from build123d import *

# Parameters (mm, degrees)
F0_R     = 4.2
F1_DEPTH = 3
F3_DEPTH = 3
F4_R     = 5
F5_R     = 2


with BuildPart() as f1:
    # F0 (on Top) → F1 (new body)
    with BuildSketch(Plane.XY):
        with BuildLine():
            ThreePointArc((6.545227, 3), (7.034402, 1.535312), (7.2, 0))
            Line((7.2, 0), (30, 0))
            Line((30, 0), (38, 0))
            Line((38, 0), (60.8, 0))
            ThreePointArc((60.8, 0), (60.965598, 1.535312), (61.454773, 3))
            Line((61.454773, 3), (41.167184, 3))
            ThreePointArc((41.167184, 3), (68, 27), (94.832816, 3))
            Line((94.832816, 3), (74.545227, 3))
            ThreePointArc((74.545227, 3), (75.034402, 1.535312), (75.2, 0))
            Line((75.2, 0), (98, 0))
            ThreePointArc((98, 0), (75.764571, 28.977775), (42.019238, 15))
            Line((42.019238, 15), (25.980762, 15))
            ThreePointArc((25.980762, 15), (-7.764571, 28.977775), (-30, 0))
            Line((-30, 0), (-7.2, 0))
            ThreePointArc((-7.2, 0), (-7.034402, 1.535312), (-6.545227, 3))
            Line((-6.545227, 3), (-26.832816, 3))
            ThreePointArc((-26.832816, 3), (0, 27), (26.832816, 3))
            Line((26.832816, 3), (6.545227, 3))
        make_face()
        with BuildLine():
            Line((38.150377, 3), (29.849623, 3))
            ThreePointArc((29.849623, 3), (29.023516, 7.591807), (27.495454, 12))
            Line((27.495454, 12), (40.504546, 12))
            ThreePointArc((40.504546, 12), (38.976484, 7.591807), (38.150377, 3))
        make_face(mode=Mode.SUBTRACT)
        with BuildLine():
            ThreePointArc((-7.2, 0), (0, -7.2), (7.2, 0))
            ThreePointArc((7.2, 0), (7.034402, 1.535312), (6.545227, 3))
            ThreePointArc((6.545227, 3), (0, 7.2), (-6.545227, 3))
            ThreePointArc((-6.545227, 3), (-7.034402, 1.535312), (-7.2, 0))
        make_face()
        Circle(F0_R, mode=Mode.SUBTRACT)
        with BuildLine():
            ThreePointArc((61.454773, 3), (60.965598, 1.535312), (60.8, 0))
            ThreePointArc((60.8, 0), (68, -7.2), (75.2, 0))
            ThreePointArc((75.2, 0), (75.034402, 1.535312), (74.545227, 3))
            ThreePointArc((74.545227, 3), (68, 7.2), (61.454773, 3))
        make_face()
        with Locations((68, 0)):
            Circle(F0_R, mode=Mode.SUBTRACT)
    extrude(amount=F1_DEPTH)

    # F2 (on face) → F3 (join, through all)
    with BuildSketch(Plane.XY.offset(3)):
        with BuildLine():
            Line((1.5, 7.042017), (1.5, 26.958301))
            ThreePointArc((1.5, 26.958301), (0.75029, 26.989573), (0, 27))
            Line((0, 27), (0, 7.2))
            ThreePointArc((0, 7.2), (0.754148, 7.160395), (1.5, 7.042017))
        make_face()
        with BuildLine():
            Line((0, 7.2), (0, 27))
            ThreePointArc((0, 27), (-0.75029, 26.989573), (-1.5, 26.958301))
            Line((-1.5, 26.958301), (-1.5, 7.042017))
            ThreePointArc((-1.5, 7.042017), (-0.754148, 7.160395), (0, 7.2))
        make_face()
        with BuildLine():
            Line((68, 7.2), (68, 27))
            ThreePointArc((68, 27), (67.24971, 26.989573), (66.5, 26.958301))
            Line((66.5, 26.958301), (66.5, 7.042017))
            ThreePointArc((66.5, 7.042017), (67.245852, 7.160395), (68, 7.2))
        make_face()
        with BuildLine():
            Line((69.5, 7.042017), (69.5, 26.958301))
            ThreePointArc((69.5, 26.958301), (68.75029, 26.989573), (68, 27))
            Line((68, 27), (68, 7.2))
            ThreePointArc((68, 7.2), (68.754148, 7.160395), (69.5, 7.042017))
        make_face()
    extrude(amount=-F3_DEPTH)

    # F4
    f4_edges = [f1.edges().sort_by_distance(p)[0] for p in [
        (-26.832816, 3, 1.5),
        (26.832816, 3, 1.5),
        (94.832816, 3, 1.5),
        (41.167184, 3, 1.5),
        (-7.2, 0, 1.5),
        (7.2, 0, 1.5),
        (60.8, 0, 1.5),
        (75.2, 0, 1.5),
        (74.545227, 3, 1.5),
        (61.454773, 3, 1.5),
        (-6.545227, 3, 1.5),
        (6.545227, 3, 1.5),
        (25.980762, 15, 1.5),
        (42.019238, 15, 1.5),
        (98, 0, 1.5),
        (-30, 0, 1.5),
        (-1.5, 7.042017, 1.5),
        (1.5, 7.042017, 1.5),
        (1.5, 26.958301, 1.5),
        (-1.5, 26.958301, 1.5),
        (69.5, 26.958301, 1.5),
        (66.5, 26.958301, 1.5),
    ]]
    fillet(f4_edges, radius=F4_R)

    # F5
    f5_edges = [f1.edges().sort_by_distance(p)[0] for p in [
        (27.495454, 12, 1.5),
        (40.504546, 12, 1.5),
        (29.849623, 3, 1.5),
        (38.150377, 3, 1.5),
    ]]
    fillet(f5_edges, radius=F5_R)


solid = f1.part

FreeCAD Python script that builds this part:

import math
import FreeCAD as App
import Part
import Sketcher

V = App.Vector
Q = App.Units.Quantity


def edges_at(feature, points):
    """Names of the edges that pass closest to the given points."""
    edges = feature.Shape.Edges
    near = lambda p: min(range(len(edges)), key=lambda i: edges[i].distToShape(Part.Vertex(*p))[0])
    return sorted({f"Edge{near(p) + 1}" for p in points})

doc = App.newDocument("Part")
body = doc.addObject("PartDesign::Body", "Body")

sketch1 = body.newObject("Sketcher::SketchObject", "Sketch")
sketch1.AttachmentSupport = (doc.getObject("XY_Plane"), [""])
sketch1.MapMode = "FlatFace"
sketch1.addGeometry([
    Part.LineSegment(V(7.2, 0, 0), V(60.8, 0, 0)),
    Part.ArcOfCircle(Part.Circle(V(68, 0, 0), V(0, 0, 1), 7.2), math.radians(180), math.radians(360)),
    Part.LineSegment(V(75.2, 0, 0), V(98, 0, 0)),
    Part.ArcOfCircle(Part.Circle(V(68, 0, 0), V(0, 0, 1), 30), math.radians(0), math.radians(150)),
    Part.LineSegment(V(42.019238, 15, 0), V(25.980762, 15, 0)),
    Part.ArcOfCircle(Part.Circle(V(0, 0, 0), V(0, 0, 1), 30), math.radians(30), math.radians(180)),
    Part.LineSegment(V(-30, 0, 0), V(-7.2, 0, 0)),
    Part.ArcOfCircle(Part.Circle(V(0, 0, 0), V(0, 0, 1), 7.2), math.radians(180), math.radians(360)),
    Part.Circle(V(0, 0, 0), V(0, 0, 1), 4.2),
    Part.Circle(V(68, 0, 0), V(0, 0, 1), 4.2),
    Part.ArcOfCircle(Part.Circle(V(67.99997, 0.000008, 0), V(0, 0, 1), 29.999969), math.radians(156.421812), math.radians(174.260838)),
    Part.LineSegment(V(38.150377, 3, 0), V(29.849623, 3, 0)),
    Part.ArcOfCircle(Part.Circle(V(0.00003, 0.000008, 0), V(0, 0, 1), 29.999969), math.radians(5.739162), math.radians(23.578188)),
    Part.LineSegment(V(27.495454, 12, 0), V(40.504546, 12, 0)),
    Part.LineSegment(V(26.832816, 3, 0), V(6.545227, 3, 0)),
    Part.ArcOfCircle(Part.Circle(V(0, 0, 0), V(0, 0, 1), 7.2), math.radians(24.624316), math.radians(155.375684)),
    Part.LineSegment(V(-6.545227, 3, 0), V(-26.832816, 3, 0)),
    Part.ArcOfCircle(Part.Circle(V(0, 0, 0), V(0, 0, 1), 27), math.radians(6.379371), math.radians(173.620629)),
    Part.LineSegment(V(61.454773, 3, 0), V(41.167184, 3, 0)),
    Part.ArcOfCircle(Part.Circle(V(68, 0, 0), V(0, 0, 1), 27), math.radians(6.379371), math.radians(173.620629)),
    Part.LineSegment(V(94.832816, 3, 0), V(74.545227, 3, 0)),
    Part.ArcOfCircle(Part.Circle(V(68, 0, 0), V(0, 0, 1), 7.2), math.radians(24.624316), math.radians(155.375684)),
], False)
sketch1.addConstraint([
    Sketcher.Constraint("Coincident", 0, 2, 1, 1),
    Sketcher.Constraint("Coincident", 1, 2, 2, 1),
    Sketcher.Constraint("Coincident", 2, 2, 3, 1),
    Sketcher.Constraint("Coincident", 3, 2, 4, 1),
    Sketcher.Constraint("Coincident", 4, 2, 5, 1),
    Sketcher.Constraint("Coincident", 5, 2, 6, 1),
    Sketcher.Constraint("Coincident", 6, 2, 7, 1),
    Sketcher.Constraint("Coincident", 7, 2, 0, 1),
    Sketcher.Constraint("Coincident", 10, 2, 11, 1),
    Sketcher.Constraint("Coincident", 11, 2, 12, 1),
    Sketcher.Constraint("Coincident", 12, 2, 13, 1),
    Sketcher.Constraint("Coincident", 13, 2, 10, 1),
    Sketcher.Constraint("Coincident", 14, 2, 15, 1),
    Sketcher.Constraint("Coincident", 15, 2, 16, 1),
    Sketcher.Constraint("Coincident", 16, 2, 17, 2),
    Sketcher.Constraint("Coincident", 17, 1, 14, 1),
    Sketcher.Constraint("Coincident", 18, 2, 19, 2),
    Sketcher.Constraint("Coincident", 19, 1, 20, 1),
    Sketcher.Constraint("Coincident", 20, 2, 21, 1),
    Sketcher.Constraint("Coincident", 21, 2, 18, 1),
    Sketcher.Constraint("Horizontal", 0),
    Sketcher.Constraint("Horizontal", 2),
    Sketcher.Constraint("Horizontal", 4),
    Sketcher.Constraint("Horizontal", 6),
    Sketcher.Constraint("Horizontal", 11),
    Sketcher.Constraint("Horizontal", 13),
    Sketcher.Constraint("Horizontal", 14),
    Sketcher.Constraint("Horizontal", 16),
    Sketcher.Constraint("Horizontal", 18),
    Sketcher.Constraint("Horizontal", 20),
    Sketcher.Constraint("Coincident", 5, 3, -1, 1),
    Sketcher.Constraint("Coincident", 7, 3, -1, 1),
    Sketcher.Constraint("Coincident", 8, 3, -1, 1),
    Sketcher.Constraint("Coincident", 15, 3, -1, 1),
    Sketcher.Constraint("Coincident", 17, 3, -1, 1),
    Sketcher.Constraint("Coincident", 3, 3, 1, 3),
    Sketcher.Constraint("Coincident", 9, 3, 1, 3),
    Sketcher.Constraint("Coincident", 19, 3, 1, 3),
    Sketcher.Constraint("Coincident", 21, 3, 1, 3),
    Sketcher.Constraint("Equal", 3, 5),
    Sketcher.Constraint("Equal", 1, 7),
    Sketcher.Constraint("Equal", 8, 9),
    Sketcher.Constraint("Equal", 10, 12),
    Sketcher.Constraint("Equal", 7, 15),
    Sketcher.Constraint("Equal", 17, 19),
    Sketcher.Constraint("Equal", 15, 21),
    Sketcher.Constraint("PointOnObject", 1, 3, -1),
    Sketcher.Constraint("PointOnObject", 0, 2, -1),
    Sketcher.Constraint("PointOnObject", 1, 2, -1),
    Sketcher.Constraint("PointOnObject", 5, 2, -1),
    Sketcher.Constraint("Horizontal", 10, 3, 12, 3),
    Sketcher.Constraint("Horizontal", 11, 2, 14, 2),
    Sketcher.Constraint("Horizontal", 14, 2, 15, 2),
    Sketcher.Constraint("Horizontal", 17, 1, 18, 2),
    Sketcher.Constraint("Horizontal", 18, 2, 19, 1),
    Sketcher.Constraint("Radius", 3, Q("30 mm")),
    Sketcher.Constraint("Radius", 17, Q("27 mm")),
    Sketcher.Constraint("Diameter", 8, Q("8.4 mm")),
    Sketcher.Constraint("Radius", 1, Q("7.2 mm")),
    Sketcher.Constraint("DistanceX", 0, 1, 0, 2, Q("53.6 mm")),
    Sketcher.Constraint("DistanceY", -1, 1, 3, 2, Q("15 mm")),
    Sketcher.Constraint("DistanceY", -1, 1, 10, 2, Q("3 mm")),
    Sketcher.Constraint("DistanceY", -1, 1, 12, 2, Q("12 mm")),
    Sketcher.Constraint("Radius", 10, Q("29.999969 mm")),
    Sketcher.Constraint("DistanceX", 13, 1, 13, 2, Q("13.009092 mm")),
    Sketcher.Constraint("DistanceX", 11, 2, 11, 1, Q("8.300754 mm")),
    Sketcher.Constraint("DistanceX", -1, 1, 10, 3, Q("67.99997 mm")),
])
pad1 = body.newObject("PartDesign::Pad", "Pad")
pad1.Profile = sketch1
pad1.Length = 3

sketch2 = body.newObject("Sketcher::SketchObject", "Sketch001")
sketch2.AttachmentSupport = (doc.getObject("XY_Plane"), [""])
sketch2.MapMode = "FlatFace"
sketch2.AttachmentOffset = App.Placement(V(0, 0, 3), App.Rotation())
sketch2.addGeometry([
    Part.LineSegment(V(1.5, 7.042017, 0), V(1.5, 26.958301, 0)),
    Part.ArcOfCircle(Part.Circle(V(-0.000017, -0.000508, 0), V(0, 0, 1), 27.000508), math.radians(86.815286), math.radians(89.999965)),
    Part.ArcOfCircle(Part.Circle(V(0.000017, -0.000508, 0), V(0, 0, 1), 27.000508), math.radians(90.000035), math.radians(93.184714)),
    Part.LineSegment(V(-1.5, 26.958301, 0), V(-1.5, 7.042017, 0)),
    Part.ArcOfCircle(Part.Circle(V(0.000007, -0.000075, 0), V(0, 0, 1), 7.200075), math.radians(90.000054), math.radians(102.024627)),
    Part.ArcOfCircle(Part.Circle(V(-0.000007, -0.000075, 0), V(0, 0, 1), 7.200075), math.radians(77.975373), math.radians(89.999946)),
    Part.ArcOfCircle(Part.Circle(V(68.000017, -0.000508, 0), V(0, 0, 1), 27.000508), math.radians(90.000035), math.radians(93.184714)),
    Part.LineSegment(V(66.5, 26.958301, 0), V(66.5, 7.042017, 0)),
    Part.ArcOfCircle(Part.Circle(V(68.000007, -0.000075, 0), V(0, 0, 1), 7.200075), math.radians(90.000054), math.radians(102.024627)),
    Part.ArcOfCircle(Part.Circle(V(67.999993, -0.000075, 0), V(0, 0, 1), 7.200075), math.radians(77.975373), math.radians(89.999946)),
    Part.LineSegment(V(69.5, 7.042017, 0), V(69.5, 26.958301, 0)),
    Part.ArcOfCircle(Part.Circle(V(67.999983, -0.000508, 0), V(0, 0, 1), 27.000508), math.radians(86.815286), math.radians(89.999965)),
], False)
sketch2.addConstraint([
    Sketcher.Constraint("Coincident", 0, 2, 1, 1),
    Sketcher.Constraint("Tangent", 1, 2, 2, 1),
    Sketcher.Constraint("Coincident", 2, 2, 3, 1),
    Sketcher.Constraint("Coincident", 3, 2, 4, 2),
    Sketcher.Constraint("Tangent", 4, 1, 5, 2),
    Sketcher.Constraint("Coincident", 5, 1, 0, 1),
    Sketcher.Constraint("Coincident", 6, 2, 7, 1),
    Sketcher.Constraint("Coincident", 7, 2, 8, 2),
    Sketcher.Constraint("Tangent", 8, 1, 9, 2),
    Sketcher.Constraint("Coincident", 9, 1, 10, 1),
    Sketcher.Constraint("Coincident", 10, 2, 11, 1),
    Sketcher.Constraint("Tangent", 11, 2, 6, 1),
    Sketcher.Constraint("Vertical", 0),
    Sketcher.Constraint("Vertical", 3),
    Sketcher.Constraint("Vertical", 7),
    Sketcher.Constraint("Vertical", 10),
    Sketcher.Constraint("Equal", 1, 2),
    Sketcher.Constraint("Equal", 4, 5),
    Sketcher.Constraint("Equal", 2, 6),
    Sketcher.Constraint("Equal", 5, 8),
    Sketcher.Constraint("Equal", 8, 9),
    Sketcher.Constraint("Equal", 6, 11),
    Sketcher.Constraint("Symmetric", 0, 2, 2, 2, -2),
    Sketcher.Constraint("PointOnObject", 1, 2, -2),
    Sketcher.Constraint("PointOnObject", 4, 1, -2),
    Sketcher.Constraint("Horizontal", 2, 3, 6, 3),
    Sketcher.Constraint("Horizontal", 5, 3, 8, 3),
    Sketcher.Constraint("Horizontal", 3, 2, 5, 1),
    Sketcher.Constraint("Horizontal", 2, 2, 6, 2),
    Sketcher.Constraint("Horizontal", 5, 1, 7, 2),
    Sketcher.Constraint("Horizontal", 7, 2, 9, 1),
    Sketcher.Constraint("Vertical", 8, 1, 11, 2),
    Sketcher.Constraint("DistanceY", -1, 1, 1, 2, Q("27 mm")),
    Sketcher.Constraint("DistanceX", -1, 1, 8, 1, Q("68 mm")),
    Sketcher.Constraint("DistanceX", 2, 3, 6, 3, Q("68 mm")),
    Sketcher.Constraint("DistanceX", 2, 2, 0, 2, Q("3 mm")),
    Sketcher.Constraint("DistanceY", -1, 1, 4, 1, Q("7.2 mm")),
    Sketcher.Constraint("Radius", 1, Q("27.000508 mm")),
    Sketcher.Constraint("Radius", 4, Q("7.200075 mm")),
])
pad2 = body.newObject("PartDesign::Pad", "Pad001")
pad2.Profile = sketch2
pad2.Length = 3
pad2.Reversed = True
doc.recompute()

fillet = body.newObject("PartDesign::Fillet", "Fillet")
fillet.Base = (pad2, edges_at(pad2, [
    (-26.833, 3, 1.5),
    (26.833, 3, 1.5),
    (94.833, 3, 1.5),
    (41.167, 3, 1.5),
    (-7.2, 0, 1.5),
    (7.2, 0, 1.5),
    (60.8, 0, 1.5),
    (75.2, 0, 1.5),
    (74.545, 3, 1.5),
    (61.455, 3, 1.5),
    (-6.545, 3, 1.5),
    (6.545, 3, 1.5),
    (25.981, 15, 1.5),
    (42.019, 15, 1.5),
    (98, 0, 1.5),
    (-30, 0, 1.5),
    (-1.5, 7.042, 1.5),
    (1.5, 7.042, 1.5),
    (1.5, 26.958, 1.5),
    (-1.5, 26.958, 1.5),
    (69.5, 26.958, 1.5),
    (66.5, 26.958, 1.5),
]))
fillet.Radius = 5
doc.recompute()

fillet2 = body.newObject("PartDesign::Fillet", "Fillet001")
fillet2.Base = (fillet, edges_at(fillet, [
    (27.495, 12, 1.5),
    (40.505, 12, 1.5),
    (29.85, 3, 1.5),
    (38.15, 3, 1.5),
]))
fillet2.Radius = 2

doc.recompute()
